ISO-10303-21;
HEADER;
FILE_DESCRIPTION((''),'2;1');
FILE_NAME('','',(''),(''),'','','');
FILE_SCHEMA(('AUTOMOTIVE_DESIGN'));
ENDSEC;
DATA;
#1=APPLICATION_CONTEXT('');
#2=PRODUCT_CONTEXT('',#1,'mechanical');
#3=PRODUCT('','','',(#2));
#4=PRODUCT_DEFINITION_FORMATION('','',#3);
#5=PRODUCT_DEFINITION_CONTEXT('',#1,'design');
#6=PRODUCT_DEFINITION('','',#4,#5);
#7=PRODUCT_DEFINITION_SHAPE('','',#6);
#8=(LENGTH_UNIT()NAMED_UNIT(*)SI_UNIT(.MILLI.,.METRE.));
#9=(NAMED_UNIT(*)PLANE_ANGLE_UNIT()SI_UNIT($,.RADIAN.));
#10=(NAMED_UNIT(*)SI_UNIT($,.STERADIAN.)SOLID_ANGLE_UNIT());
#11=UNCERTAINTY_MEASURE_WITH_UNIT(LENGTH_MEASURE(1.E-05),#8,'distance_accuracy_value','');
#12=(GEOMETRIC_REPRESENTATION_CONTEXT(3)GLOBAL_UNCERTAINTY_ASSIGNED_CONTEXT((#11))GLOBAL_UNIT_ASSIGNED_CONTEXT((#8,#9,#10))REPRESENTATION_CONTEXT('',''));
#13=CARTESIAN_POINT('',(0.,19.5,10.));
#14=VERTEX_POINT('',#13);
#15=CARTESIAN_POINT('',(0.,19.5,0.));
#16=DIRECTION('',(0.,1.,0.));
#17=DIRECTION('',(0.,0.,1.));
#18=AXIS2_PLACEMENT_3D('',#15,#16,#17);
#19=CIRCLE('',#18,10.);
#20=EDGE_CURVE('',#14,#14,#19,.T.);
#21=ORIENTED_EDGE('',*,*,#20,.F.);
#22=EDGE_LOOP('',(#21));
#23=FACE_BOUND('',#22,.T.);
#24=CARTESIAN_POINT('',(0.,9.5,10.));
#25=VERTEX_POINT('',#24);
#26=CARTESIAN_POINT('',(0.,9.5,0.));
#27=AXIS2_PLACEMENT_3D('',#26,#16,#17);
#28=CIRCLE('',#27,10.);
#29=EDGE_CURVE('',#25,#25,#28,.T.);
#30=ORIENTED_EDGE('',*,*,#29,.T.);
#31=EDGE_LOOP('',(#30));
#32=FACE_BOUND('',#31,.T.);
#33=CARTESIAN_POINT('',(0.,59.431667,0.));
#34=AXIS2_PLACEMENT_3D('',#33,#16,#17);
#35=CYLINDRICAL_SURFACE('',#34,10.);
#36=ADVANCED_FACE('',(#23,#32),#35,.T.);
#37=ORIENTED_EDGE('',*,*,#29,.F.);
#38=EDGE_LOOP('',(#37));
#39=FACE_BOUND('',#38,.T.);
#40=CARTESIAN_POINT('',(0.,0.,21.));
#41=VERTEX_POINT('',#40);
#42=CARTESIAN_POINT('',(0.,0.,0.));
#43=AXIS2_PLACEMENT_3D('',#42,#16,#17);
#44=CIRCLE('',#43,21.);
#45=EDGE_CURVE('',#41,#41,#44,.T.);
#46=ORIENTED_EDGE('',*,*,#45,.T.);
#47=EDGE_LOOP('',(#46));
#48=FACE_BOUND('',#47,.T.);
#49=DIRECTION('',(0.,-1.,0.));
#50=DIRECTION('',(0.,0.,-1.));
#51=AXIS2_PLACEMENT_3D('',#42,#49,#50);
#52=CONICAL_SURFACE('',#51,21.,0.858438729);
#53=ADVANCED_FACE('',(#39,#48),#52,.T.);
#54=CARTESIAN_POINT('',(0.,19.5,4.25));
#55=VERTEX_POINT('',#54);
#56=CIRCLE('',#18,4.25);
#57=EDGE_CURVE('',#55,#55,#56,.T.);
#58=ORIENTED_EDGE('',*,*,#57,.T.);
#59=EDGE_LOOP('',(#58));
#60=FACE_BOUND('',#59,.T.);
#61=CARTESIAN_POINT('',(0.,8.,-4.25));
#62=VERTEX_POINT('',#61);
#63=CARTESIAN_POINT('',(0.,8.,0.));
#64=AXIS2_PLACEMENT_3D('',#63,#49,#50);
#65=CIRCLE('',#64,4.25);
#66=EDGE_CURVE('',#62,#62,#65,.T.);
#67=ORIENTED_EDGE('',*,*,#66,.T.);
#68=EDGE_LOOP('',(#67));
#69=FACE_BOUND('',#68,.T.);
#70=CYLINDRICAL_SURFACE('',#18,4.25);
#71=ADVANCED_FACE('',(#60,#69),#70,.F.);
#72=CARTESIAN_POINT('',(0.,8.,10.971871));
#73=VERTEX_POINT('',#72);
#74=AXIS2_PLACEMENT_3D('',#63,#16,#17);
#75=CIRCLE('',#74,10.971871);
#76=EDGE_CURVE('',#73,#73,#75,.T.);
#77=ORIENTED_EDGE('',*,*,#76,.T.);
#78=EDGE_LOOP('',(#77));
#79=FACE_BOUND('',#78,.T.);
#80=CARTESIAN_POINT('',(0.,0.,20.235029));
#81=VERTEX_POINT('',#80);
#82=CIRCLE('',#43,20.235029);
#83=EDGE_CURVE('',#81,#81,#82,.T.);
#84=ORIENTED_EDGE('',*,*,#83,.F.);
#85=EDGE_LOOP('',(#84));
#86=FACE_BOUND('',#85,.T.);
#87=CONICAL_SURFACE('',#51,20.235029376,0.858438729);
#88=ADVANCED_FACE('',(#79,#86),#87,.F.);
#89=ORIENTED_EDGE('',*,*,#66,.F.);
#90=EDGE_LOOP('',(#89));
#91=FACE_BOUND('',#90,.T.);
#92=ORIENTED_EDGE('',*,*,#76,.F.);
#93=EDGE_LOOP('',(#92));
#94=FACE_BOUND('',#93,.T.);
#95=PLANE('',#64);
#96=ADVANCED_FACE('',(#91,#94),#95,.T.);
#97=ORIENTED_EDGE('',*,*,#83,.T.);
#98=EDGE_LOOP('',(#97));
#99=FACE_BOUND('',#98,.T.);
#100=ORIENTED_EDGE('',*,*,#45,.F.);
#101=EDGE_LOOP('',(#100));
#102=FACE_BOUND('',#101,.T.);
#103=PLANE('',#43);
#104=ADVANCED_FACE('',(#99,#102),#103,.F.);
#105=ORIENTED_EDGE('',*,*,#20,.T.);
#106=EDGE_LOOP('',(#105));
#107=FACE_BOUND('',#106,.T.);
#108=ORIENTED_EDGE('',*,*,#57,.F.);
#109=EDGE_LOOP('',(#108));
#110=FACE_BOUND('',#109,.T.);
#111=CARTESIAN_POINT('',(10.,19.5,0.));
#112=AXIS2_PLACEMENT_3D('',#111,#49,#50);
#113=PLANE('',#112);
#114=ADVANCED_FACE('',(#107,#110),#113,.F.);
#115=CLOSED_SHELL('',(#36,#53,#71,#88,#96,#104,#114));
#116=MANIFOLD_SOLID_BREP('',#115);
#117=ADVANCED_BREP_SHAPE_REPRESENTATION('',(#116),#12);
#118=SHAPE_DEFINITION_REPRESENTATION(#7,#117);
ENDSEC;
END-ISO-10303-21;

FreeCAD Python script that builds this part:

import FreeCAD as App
import Part
import Sketcher

V = App.Vector
Q = App.Units.Quantity

doc = App.newDocument("Part")
body = doc.addObject("PartDesign::Body", "Body")

# Sketch on XY plane
sketch1 = doc.addObject("Sketcher::SketchObject", "Sketch")
body.addObject(sketch1)
sketch1.AttachmentSupport = (doc.XY_Plane, [""])
sketch1.MapMode = "FlatFace"
sketch1.addGeometry([
    Part.LineSegment(V(0, 0, 0), V(21, 0, 0)),  # 0
    Part.LineSegment(V(21, 0, 0), V(10, 10, 0)),  # 1
    Part.LineSegment(V(10, 10, 0), V(10, 20, 0)),  # 2
    Part.LineSegment(V(10, 20, 0), V(0, 20, 0)),  # 3
    Part.LineSegment(V(0, 20, 0), V(0, 0, 0)),  # 4
], False)
sketch1.addConstraint([
    Sketcher.Constraint("Coincident", 0, 2, 1, 1),
    Sketcher.Constraint("Coincident", 1, 2, 2, 1),
    Sketcher.Constraint("Coincident", 2, 2, 3, 1),
    Sketcher.Constraint("Coincident", 3, 2, 4, 1),
    Sketcher.Constraint("Coincident", 4, 2, 0, 1),
    Sketcher.Constraint("Horizontal", 0),
    Sketcher.Constraint("Vertical", 2),
    Sketcher.Constraint("Horizontal", 3),
    Sketcher.Constraint("Vertical", 4),
    Sketcher.Constraint("Coincident", 4, 2, -1, 1),
    Sketcher.Constraint("Equal", 3, 2),
    Sketcher.Constraint("DistanceX", 0, 1, 0, 2, Q("21 mm")),
    Sketcher.Constraint("DistanceX", 3, 2, 3, 1, Q("10 mm")),
    Sketcher.Constraint("DistanceY", 4, 2, 4, 1, Q("19.5 mm")),
])
revolution = doc.addObject("PartDesign::Revolution", "Revolution")
body.addObject(revolution)
revolution.Profile = sketch1
revolution.ReferenceAxis = (sketch1, ["V_Axis"])
revolution.Angle = 360

# Sketch on XY plane
sketch2 = doc.addObject("Sketcher::SketchObject", "Sketch001")
body.addObject(sketch2)
sketch2.AttachmentSupport = (doc.XY_Plane, [""])
sketch2.MapMode = "FlatFace"
sketch2.addGeometry([
    Part.LineSegment(V(11, 8, 0), V(0, 8, 0)),
    Part.LineSegment(V(0, 8, 0), V(0, 0, 0)),
    Part.LineSegment(V(0, 0, 0), V(20, 0, 0)),
    Part.LineSegment(V(20, 0, 0), V(11, 8, 0)),
], False)
sketch2.addConstraint([
    Sketcher.Constraint("Coincident", 0, 2, 1, 1),
    Sketcher.Constraint("Coincident", 1, 2, 2, 1),
    Sketcher.Constraint("Coincident", 2, 2, 3, 1),
    Sketcher.Constraint("Coincident", 3, 2, 0, 1),
    Sketcher.Constraint("Horizontal", 0),
    Sketcher.Constraint("Vertical", 1),
    Sketcher.Constraint("Horizontal", 2),
    Sketcher.Constraint("Coincident", 1, 2, -1, 1),
    Sketcher.Constraint("DistanceY", 1, 2, 1, 1, Q("8 mm")),
    Sketcher.Constraint("DistanceX", 0, 2, 0, 1, Q("10.971871 mm")),
    Sketcher.Constraint("DistanceX", 2, 1, 2, 2, Q("20.235029 mm")),
])
groove = doc.addObject("PartDesign::Groove", "Groove")
body.addObject(groove)
groove.Profile = sketch2
groove.ReferenceAxis = (sketch2, ["V_Axis"])
groove.Angle = 360

# Sketch on XZ plane
sketch3 = doc.addObject("Sketcher::SketchObject", "Sketch002")
body.addObject(sketch3)
sketch3.AttachmentSupport = (doc.XZ_Plane, [""])
sketch3.MapMode = "FlatFace"
sketch3.AttachmentOffset = App.Placement(V(0, 0, -19.5), App.Rotation())
sketch3.addGeometry(Part.Circle(V(0, 0, 0), V(0, 0, 1), 4.2), False)
sketch3.addConstraint([
    Sketcher.Constraint("Coincident", 0, 3, -1, 1),
    Sketcher.Constraint("Diameter", 0, Q("8.5 mm")),
])
doc.recompute()
hole = doc.addObject("PartDesign::Hole", "Hole")
body.addObject(hole)
hole.Profile = sketch3
hole.ThreadType = "None"
hole.Diameter = 8.5
hole.DepthType = "Dimension"
hole.Depth = 24.5
hole.DrillPoint = "Angled"
hole.DrillPointAngle = 118
hole.Reversed = True

doc.recompute()
